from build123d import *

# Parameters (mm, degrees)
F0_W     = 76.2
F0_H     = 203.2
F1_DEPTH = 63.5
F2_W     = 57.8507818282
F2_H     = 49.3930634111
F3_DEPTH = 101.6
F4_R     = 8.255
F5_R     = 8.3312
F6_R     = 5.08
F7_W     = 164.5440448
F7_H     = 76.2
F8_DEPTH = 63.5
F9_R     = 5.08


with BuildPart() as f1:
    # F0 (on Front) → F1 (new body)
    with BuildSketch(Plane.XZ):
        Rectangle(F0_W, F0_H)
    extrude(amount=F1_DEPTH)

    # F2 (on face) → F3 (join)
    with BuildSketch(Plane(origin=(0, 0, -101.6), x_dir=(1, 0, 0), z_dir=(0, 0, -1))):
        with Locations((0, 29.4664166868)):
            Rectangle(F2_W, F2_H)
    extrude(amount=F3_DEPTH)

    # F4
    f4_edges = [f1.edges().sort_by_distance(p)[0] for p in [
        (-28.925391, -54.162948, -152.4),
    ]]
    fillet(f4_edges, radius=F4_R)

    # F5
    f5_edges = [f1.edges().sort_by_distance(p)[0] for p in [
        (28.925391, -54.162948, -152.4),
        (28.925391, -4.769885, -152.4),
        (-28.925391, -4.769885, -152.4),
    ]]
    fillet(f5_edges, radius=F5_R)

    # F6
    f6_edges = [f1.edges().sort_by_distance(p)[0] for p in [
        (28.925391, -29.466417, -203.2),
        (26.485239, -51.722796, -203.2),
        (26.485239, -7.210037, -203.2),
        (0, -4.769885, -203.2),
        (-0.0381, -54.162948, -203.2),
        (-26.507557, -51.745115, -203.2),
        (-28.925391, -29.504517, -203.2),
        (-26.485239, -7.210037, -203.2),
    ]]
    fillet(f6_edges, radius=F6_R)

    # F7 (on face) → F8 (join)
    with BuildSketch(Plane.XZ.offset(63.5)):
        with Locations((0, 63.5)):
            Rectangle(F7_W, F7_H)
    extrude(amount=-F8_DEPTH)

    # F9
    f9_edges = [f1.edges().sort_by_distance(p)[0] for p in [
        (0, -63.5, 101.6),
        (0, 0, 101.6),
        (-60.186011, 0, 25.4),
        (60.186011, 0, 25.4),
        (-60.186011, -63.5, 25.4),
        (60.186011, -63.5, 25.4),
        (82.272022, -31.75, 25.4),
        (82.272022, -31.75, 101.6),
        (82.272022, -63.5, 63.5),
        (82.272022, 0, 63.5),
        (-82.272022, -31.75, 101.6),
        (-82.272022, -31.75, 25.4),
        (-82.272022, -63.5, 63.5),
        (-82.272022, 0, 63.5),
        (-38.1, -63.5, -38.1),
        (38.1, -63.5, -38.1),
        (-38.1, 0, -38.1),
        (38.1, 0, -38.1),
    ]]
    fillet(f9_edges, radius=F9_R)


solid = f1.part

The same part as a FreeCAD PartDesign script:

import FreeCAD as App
import Part
import Sketcher
from FreeCAD import Vector
Q = App.Units.Quantity


def edges_at(feature, points):
    """Names of the edges that pass closest to the given points."""
    edges = feature.Shape.Edges
    near = lambda p: min(range(len(edges)), key=lambda i: edges[i].distToShape(Part.Vertex(*p))[0])
    return sorted({f"Edge{near(p) + 1}" for p in points})


def add_polygon(sketch, points):
    """Adds a closed chain of lines whose ends are joined by coincident constraints."""
    first, n = sketch.GeometryCount, len(points)
    for a, b in zip(points, points[1:] + points[:1]):
        sketch.addGeometry(Part.LineSegment(App.Vector(*a, 0), App.Vector(*b, 0)), False)
    for i in range(n):
        sketch.addConstraint(Sketcher.Constraint("Coincident", first + i, 2, first + (i + 1) % n, 1))

doc = App.newDocument("Part")
body = doc.addObject("PartDesign::Body", "Body")

sketch1 = body.newObject("Sketcher::SketchObject", "Sketch")
sketch1.AttachmentSupport = (doc.getObject("XZ_Plane"), [""])
sketch1.MapMode = "FlatFace"
add_polygon(sketch1, [(-38, 102), (-38, -102), (38, -102), (38, 102)])
sketch1.addConstraint([
    Sketcher.Constraint("Vertical", 0),
    Sketcher.Constraint("Horizontal", 1),
    Sketcher.Constraint("Vertical", 2),
    Sketcher.Constraint("Horizontal", 3),
    Sketcher.Constraint("Symmetric", 0, 2, 2, 2, -1, 1),
    Sketcher.Constraint("DistanceX", 1, 1, 1, 2, Q("3 in")),
    Sketcher.Constraint("DistanceY", 0, 2, 0, 1, Q("8 in")),
])
pad1 = body.newObject("PartDesign::Pad", "Pad")
pad1.Profile = sketch1
pad1.Length = Q("2.5 in")

sketch2 = body.newObject("Sketcher::SketchObject", "Sketch001")
sketch2.AttachmentSupport = (doc.getObject("XY_Plane"), [""])
sketch2.MapMode = "FlatFace"
sketch2.AttachmentOffset = App.Placement(Vector(0, 0, -4 * 25.4), App.Rotation())
add_polygon(sketch2, [(-29, -54), (-29, -5), (29, -5), (29, -54)])
sketch2.addConstraint([
    Sketcher.Constraint("Vertical", 0),
    Sketcher.Constraint("Horizontal", 1),
    Sketcher.Constraint("Vertical", 2),
    Sketcher.Constraint("Horizontal", 3),
    Sketcher.Constraint("DistanceX", 1, 1, 1, 2, 57.850782),
    Sketcher.Constraint("DistanceY", 0, 1, 0, 2, 49.393063),
    Sketcher.Constraint("DistanceX", 0, 2, -1, 1, 28.925391),
    Sketcher.Constraint("DistanceY", 2, 2, -1, 1, 54.162948),
])
pad2 = body.newObject("PartDesign::Pad", "Pad001")
pad2.Profile = sketch2
pad2.Length = Q("4 in")
pad2.Reversed = True
doc.recompute()

fillet = body.newObject("PartDesign::Fillet", "Fillet")
fillet.Base = (pad2, edges_at(pad2, [(-28.925, -54.163, -152.4)]))
fillet.Radius = Q("0.325 in")
doc.recompute()

fillet2 = body.newObject("PartDesign::Fillet", "Fillet001")
fillet2.Base = (fillet, edges_at(fillet, [(28.925, -54.163, -152.4), (28.925, -4.77, -152.4), (-28.925, -4.77, -152.4)]))
fillet2.Radius = Q("0.328 in")
doc.recompute()

fillet3 = body.newObject("PartDesign::Fillet", "Fillet002")
fillet3.Base = (fillet2, edges_at(fillet2, [
    (28.925, -29.466, -203.2),
    (26.485, -51.723, -203.2),
    (26.485, -7.21, -203.2),
    (0, -4.77, -203.2),
    (-0.038, -54.163, -203.2),
    (-26.508, -51.745, -203.2),
    (-28.925, -29.505, -203.2),
    (-26.485, -7.21, -203.2),
]))
fillet3.Radius = Q("0.2 in")

sketch3 = body.newObject("Sketcher::SketchObject", "Sketch002")
sketch3.AttachmentSupport = (doc.getObject("XZ_Plane"), [""])
sketch3.MapMode = "FlatFace"
sketch3.AttachmentOffset = App.Placement(Vector(0, 0, 2.5 * 25.4), App.Rotation())
add_polygon(sketch3, [(-82, 102), (-82, 25), (82, 25), (82, 102)])
sketch3.addConstraint([
    Sketcher.Constraint("Vertical", 0),
    Sketcher.Constraint("Horizontal", 1),
    Sketcher.Constraint("Vertical", 2),
    Sketcher.Constraint("Horizontal", 3),
    Sketcher.Constraint("DistanceY", 0, 2, 0, 1, Q("3 in")),
    Sketcher.Constraint("DistanceY", -1, 1, 0, 2, Q("1 in")),
    Sketcher.Constraint("DistanceX", 1, 1, 1, 2, 164.544045),
    Sketcher.Constraint("DistanceX", 0, 2, -1, 1, 82.272022),
])
pad3 = body.newObject("PartDesign::Pad", "Pad002")
pad3.Profile = sketch3
pad3.Length = Q("2.5 in")
pad3.Reversed = True
doc.recompute()

fillet4 = body.newObject("PartDesign::Fillet", "Fillet003")
fillet4.Base = (pad3, edges_at(pad3, [
    (0, -63.5, 101.6),
    (0, 0, 101.6),
    (-60.186, 0, 25.4),
    (60.186, 0, 25.4),
    (-60.186, -63.5, 25.4),
    (60.186, -63.5, 25.4),
    (82.272, -31.75, 25.4),
    (82.272, -31.75, 101.6),
    (82.272, -63.5, 63.5),
    (82.272, 0, 63.5),
    (-82.272, -31.75, 101.6),
    (-82.272, -31.75, 25.4),
    (-82.272, -63.5, 63.5),
    (-82.272, 0, 63.5),
    (-38.1, -63.5, -38.1),
    (38.1, -63.5, -38.1),
    (-38.1, 0, -38.1),
    (38.1, 0, -38.1),
]))
fillet4.Radius = Q("0.2 in")

doc.recompute()
